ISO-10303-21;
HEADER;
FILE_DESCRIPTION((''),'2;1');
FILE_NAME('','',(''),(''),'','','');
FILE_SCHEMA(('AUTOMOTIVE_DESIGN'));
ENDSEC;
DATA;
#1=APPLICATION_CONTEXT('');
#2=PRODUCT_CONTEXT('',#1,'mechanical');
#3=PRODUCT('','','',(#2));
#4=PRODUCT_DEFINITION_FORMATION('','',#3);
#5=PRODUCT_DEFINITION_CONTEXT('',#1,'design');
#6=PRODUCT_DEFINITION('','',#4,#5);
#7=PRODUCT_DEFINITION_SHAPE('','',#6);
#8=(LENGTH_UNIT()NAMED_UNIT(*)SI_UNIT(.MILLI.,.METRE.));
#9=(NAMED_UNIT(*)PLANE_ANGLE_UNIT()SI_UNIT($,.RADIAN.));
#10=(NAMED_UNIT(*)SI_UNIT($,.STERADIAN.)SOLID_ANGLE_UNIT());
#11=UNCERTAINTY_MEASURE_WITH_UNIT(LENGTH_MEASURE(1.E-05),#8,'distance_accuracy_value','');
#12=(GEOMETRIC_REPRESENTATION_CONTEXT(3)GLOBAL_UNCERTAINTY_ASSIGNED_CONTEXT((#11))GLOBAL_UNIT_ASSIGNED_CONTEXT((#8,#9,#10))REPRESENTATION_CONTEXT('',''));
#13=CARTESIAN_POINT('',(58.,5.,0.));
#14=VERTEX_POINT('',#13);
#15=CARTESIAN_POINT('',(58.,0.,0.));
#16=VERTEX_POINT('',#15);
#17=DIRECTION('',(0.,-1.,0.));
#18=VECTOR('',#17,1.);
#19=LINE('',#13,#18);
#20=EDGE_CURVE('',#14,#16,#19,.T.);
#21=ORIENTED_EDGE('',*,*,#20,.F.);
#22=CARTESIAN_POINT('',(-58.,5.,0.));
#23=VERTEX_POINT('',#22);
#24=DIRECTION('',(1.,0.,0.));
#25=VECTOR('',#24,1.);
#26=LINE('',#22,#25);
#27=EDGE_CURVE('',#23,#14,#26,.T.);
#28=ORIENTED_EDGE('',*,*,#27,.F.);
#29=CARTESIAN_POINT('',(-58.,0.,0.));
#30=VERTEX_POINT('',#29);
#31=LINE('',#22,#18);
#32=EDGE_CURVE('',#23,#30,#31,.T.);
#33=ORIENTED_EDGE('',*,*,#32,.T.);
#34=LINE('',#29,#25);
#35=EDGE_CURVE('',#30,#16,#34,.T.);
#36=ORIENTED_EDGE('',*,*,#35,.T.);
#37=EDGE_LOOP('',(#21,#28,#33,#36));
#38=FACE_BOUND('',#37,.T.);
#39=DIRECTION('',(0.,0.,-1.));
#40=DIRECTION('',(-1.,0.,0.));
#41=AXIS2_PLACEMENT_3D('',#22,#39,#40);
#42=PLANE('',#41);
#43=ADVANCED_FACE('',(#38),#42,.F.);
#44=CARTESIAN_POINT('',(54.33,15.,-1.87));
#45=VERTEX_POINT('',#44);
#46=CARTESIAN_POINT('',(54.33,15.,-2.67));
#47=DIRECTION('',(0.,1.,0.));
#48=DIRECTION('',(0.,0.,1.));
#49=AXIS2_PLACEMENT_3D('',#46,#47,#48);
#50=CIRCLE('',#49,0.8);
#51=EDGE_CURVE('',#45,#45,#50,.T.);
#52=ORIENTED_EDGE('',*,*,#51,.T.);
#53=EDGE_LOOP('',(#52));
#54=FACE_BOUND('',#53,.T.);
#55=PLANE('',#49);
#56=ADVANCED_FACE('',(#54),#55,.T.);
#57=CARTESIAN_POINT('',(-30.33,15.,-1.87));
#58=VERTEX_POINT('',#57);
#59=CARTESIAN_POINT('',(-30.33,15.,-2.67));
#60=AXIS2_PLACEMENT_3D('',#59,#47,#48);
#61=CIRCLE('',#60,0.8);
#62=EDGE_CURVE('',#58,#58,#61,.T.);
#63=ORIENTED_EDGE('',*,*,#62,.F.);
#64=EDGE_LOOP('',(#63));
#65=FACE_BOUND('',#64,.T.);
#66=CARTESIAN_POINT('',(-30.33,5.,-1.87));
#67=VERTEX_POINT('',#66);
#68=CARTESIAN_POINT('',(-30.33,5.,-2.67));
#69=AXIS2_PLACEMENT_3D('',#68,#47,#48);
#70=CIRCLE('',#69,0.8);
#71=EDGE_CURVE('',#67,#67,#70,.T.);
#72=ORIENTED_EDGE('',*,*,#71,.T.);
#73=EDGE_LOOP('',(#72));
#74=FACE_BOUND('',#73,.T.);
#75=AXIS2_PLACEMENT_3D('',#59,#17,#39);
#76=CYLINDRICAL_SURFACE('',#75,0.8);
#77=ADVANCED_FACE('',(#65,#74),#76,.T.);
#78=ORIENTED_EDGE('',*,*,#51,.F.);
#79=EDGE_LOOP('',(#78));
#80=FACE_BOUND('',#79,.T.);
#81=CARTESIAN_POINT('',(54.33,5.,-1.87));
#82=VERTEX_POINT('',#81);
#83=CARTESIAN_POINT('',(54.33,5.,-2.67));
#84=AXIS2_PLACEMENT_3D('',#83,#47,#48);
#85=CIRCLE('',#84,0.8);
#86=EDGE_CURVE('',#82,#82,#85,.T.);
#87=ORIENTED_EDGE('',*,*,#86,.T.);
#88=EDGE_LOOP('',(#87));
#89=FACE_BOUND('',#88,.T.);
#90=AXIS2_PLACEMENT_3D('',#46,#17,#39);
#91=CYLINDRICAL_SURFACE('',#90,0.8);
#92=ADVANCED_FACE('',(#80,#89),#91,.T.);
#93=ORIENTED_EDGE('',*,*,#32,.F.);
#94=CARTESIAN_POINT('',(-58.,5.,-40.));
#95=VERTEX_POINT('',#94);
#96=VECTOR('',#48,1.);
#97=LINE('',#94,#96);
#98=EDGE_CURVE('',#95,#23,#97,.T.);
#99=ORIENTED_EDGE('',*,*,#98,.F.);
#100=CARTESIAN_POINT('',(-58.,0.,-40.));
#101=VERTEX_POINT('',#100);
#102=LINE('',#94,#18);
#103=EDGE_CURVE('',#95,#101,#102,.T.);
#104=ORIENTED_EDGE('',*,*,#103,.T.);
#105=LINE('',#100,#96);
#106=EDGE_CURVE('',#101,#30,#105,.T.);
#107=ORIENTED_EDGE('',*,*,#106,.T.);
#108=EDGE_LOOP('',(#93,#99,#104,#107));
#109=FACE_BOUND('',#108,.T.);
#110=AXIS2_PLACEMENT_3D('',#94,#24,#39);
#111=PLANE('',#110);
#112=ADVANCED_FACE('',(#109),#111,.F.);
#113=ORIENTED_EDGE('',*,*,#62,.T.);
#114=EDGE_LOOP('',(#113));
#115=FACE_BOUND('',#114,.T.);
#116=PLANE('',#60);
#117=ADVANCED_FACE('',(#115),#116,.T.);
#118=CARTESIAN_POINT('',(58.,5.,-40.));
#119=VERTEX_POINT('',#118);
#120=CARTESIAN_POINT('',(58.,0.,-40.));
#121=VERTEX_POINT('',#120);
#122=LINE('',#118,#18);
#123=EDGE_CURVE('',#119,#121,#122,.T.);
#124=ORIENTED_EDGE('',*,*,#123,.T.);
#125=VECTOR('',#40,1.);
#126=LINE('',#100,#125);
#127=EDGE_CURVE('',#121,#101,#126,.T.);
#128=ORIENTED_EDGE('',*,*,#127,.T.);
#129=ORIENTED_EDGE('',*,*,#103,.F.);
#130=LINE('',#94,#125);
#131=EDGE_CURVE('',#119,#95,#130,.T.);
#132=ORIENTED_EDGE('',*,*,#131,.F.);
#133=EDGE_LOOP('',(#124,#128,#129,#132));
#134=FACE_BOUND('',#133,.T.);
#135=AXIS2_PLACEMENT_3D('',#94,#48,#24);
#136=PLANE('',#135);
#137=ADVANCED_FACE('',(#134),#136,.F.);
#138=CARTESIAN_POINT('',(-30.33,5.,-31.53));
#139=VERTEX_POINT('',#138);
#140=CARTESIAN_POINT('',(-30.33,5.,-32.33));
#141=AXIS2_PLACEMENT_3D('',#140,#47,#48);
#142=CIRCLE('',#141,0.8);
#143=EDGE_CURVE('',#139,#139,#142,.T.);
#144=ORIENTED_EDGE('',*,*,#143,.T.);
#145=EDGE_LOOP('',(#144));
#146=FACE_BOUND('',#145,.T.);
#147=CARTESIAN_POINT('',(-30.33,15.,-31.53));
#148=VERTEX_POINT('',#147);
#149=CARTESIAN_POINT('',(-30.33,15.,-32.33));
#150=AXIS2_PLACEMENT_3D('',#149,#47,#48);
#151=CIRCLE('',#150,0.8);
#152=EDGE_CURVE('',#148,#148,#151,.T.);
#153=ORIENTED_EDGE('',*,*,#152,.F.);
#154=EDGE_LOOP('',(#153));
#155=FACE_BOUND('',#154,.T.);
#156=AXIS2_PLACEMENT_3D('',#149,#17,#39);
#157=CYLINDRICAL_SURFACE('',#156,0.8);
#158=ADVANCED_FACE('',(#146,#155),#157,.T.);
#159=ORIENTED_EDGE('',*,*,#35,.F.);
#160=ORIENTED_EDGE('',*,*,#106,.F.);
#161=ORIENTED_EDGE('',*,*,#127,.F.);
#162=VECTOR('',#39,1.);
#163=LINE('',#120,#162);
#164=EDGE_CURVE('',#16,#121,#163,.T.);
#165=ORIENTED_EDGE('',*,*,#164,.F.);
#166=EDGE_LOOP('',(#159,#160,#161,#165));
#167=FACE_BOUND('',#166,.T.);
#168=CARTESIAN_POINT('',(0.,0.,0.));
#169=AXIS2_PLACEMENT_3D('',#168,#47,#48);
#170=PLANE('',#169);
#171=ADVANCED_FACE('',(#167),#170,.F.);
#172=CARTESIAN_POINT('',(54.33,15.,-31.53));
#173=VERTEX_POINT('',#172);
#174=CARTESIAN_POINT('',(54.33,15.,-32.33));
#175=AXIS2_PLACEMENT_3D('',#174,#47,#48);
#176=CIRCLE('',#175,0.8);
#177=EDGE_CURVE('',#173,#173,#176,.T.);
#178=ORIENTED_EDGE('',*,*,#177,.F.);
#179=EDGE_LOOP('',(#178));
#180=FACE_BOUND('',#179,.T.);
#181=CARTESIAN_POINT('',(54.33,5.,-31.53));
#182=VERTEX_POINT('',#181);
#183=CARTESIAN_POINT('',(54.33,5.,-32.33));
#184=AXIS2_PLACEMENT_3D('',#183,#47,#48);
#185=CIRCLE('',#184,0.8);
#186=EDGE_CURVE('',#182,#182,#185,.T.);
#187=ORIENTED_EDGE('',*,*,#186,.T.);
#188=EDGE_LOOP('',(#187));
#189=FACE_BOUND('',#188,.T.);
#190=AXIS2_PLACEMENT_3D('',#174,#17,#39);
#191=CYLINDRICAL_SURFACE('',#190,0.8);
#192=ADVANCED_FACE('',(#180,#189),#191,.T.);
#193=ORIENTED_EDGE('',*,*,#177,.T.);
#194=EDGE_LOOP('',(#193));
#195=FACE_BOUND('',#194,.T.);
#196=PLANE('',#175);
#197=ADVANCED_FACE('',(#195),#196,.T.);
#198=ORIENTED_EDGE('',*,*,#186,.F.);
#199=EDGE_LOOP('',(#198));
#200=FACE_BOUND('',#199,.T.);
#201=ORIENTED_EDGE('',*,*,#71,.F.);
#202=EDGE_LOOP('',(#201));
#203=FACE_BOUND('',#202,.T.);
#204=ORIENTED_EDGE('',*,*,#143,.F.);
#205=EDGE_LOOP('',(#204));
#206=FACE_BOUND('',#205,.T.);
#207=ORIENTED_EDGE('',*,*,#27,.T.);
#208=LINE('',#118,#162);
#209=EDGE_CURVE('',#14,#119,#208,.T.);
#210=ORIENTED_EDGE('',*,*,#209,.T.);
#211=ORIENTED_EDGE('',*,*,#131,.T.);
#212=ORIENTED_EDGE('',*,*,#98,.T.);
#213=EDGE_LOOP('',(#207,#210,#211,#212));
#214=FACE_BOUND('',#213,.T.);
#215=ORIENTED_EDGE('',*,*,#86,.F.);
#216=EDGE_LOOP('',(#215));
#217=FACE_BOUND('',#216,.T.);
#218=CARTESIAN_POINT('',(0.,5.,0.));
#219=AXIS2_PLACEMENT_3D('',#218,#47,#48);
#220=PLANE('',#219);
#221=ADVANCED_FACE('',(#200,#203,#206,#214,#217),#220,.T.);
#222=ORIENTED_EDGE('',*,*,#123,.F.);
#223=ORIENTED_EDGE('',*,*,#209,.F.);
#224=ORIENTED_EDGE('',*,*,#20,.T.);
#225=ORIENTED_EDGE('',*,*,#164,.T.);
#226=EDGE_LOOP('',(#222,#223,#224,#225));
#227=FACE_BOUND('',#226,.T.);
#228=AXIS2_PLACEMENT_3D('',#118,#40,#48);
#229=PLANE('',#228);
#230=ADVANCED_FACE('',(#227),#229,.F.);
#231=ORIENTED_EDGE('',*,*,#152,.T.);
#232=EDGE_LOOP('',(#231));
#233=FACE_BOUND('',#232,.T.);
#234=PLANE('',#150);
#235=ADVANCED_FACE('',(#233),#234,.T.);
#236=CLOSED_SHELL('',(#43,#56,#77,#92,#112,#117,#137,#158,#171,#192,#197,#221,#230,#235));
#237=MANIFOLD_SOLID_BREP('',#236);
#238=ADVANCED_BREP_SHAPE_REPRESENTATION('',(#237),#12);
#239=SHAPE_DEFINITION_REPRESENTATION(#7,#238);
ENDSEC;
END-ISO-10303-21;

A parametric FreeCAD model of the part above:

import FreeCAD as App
import Part
import Sketcher
Q = App.Units.Quantity


def add_polygon(sketch, points):
    """Adds a closed chain of lines whose ends are joined by coincident constraints."""
    first, n = sketch.GeometryCount, len(points)
    for a, b in zip(points, points[1:] + points[:1]):
        sketch.addGeometry(Part.LineSegment(App.Vector(*a, 0), App.Vector(*b, 0)), False)
    for i in range(n):
        sketch.addConstraint(Sketcher.Constraint("Coincident", first + i, 2, first + (i + 1) % n, 1))

doc = App.newDocument("Part")
params = doc.addObject("Spreadsheet::Sheet", "Params")
for row, (alias, value) in enumerate([
    ("sketch1_width", "116 mm"),
    ("sketch1_height", "40 mm"),
    ("pad1_length", "5 mm"),
    ("sketch2_diameter", "1.6 mm"),
    ("pad2_length", "10 mm"),
], start=1):
    params.set(f"A{row}", alias)
    params.set(f"B{row}", "=" + value)
    params.setAlias(f"B{row}", alias)

body = doc.addObject("PartDesign::Body", "Body")

sketch1 = body.newObject("Sketcher::SketchObject", "Sketch")
sketch1.AttachmentSupport = (doc.getObject("XZ_Plane"), [""])
sketch1.MapMode = "FlatFace"
add_polygon(sketch1, [(-58, -40), (-58, 0), (58, 0), (58, -40)])
sketch1.addConstraint([
    Sketcher.Constraint("Vertical", 0),
    Sketcher.Constraint("Horizontal", 1),
    Sketcher.Constraint("Vertical", 2),
    Sketcher.Constraint("Horizontal", 3),
    Sketcher.Constraint("Symmetric", 0, 2, 1, 2, -1, 1),
    Sketcher.Constraint("DistanceX", 1, 1, 1, 2, Q("116 mm")),
    Sketcher.Constraint("DistanceY", 0, 1, 0, 2, Q("40 mm")),
])
sketch1.setExpression("Constraints[9]", "Params.sketch1_width")
sketch1.setExpression("Constraints[10]", "Params.sketch1_height")
pad1 = body.newObject("PartDesign::Pad", "Pad")
pad1.Profile = sketch1
pad1.setExpression("Length", "Params.pad1_length")
pad1.Reversed = True

sketch2 = body.newObject("Sketcher::SketchObject", "Sketch001")
sketch2.AttachmentSupport = (doc.getObject("XZ_Plane"), [""])
sketch2.MapMode = "FlatFace"
sketch2.AttachmentOffset = App.Placement(App.Vector(0, 0, -5), App.Rotation())
sketch2.addGeometry([
    Part.Circle(App.Vector(54.33, -32.33, 0), App.Vector(0, 0, 1), 0.8),
    Part.Circle(App.Vector(54.33, -2.67, 0), App.Vector(0, 0, 1), 0.8),
    Part.Circle(App.Vector(-30.33, -2.67, 0), App.Vector(0, 0, 1), 0.8),
    Part.Circle(App.Vector(-30.33, -32.33, 0), App.Vector(0, 0, 1), 0.8),
], False)
sketch2.addConstraint([
    Sketcher.Constraint("Equal", 0, 1),
    Sketcher.Constraint("Equal", 1, 2),
    Sketcher.Constraint("Equal", 2, 3),
    Sketcher.Constraint("Horizontal", 1, 3, 2, 3),
    Sketcher.Constraint("Horizontal", 0, 3, 3, 3),
    Sketcher.Constraint("Vertical", 0, 3, 1, 3),
    Sketcher.Constraint("Vertical", 2, 3, 3, 3),
    Sketcher.Constraint("Diameter", 0, Q("1.6 mm")),
    Sketcher.Constraint("DistanceX", -1, 1, 0, 3, Q("54.33 mm")),
    Sketcher.Constraint("DistanceY", 0, 3, -1, 1, Q("32.33 mm")),
    Sketcher.Constraint("DistanceY", 1, 3, -1, 1, Q("2.67 mm")),
    Sketcher.Constraint("DistanceX", 2, 3, -1, 1, Q("30.33 mm")),
])
sketch2.setExpression("Constraints[7]", "Params.sketch2_diameter")
pad2 = body.newObject("PartDesign::Pad", "Pad001")
pad2.Profile = sketch2
pad2.setExpression("Length", "Params.pad2_length")
pad2.Reversed = True

doc.recompute()
